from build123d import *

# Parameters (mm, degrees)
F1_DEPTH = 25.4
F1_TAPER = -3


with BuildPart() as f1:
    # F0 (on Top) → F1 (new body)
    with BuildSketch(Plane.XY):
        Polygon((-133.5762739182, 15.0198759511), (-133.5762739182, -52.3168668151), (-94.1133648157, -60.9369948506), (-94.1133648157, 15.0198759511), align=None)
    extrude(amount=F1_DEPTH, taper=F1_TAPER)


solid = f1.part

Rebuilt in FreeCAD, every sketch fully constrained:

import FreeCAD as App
import Part
import Sketcher
Q = App.Units.Quantity


def add_polygon(sketch, points):
    """Adds a closed chain of lines whose ends are joined by coincident constraints."""
    first, n = sketch.GeometryCount, len(points)
    for a, b in zip(points, points[1:] + points[:1]):
        sketch.addGeometry(Part.LineSegment(App.Vector(*a, 0), App.Vector(*b, 0)), False)
    for i in range(n):
        sketch.addConstraint(Sketcher.Constraint("Coincident", first + i, 2, first + (i + 1) % n, 1))

doc = App.newDocument("Part")
body = doc.addObject("PartDesign::Body", "Body")

# Sketch on XY plane
sketch1 = doc.addObject("Sketcher::SketchObject", "Sketch")
body.addObject(sketch1)
sketch1.AttachmentSupport = (doc.XY_Plane, [""])
sketch1.MapMode = "FlatFace"
add_polygon(sketch1, [(-134, 15), (-134, -52), (-94, -61), (-94, 15)])  # lines 0-3
sketch1.addConstraint(Sketcher.Constraint("Vertical", 0))
sketch1.addConstraint(Sketcher.Constraint("Vertical", 2))
sketch1.addConstraint(Sketcher.Constraint("Horizontal", 3))
sketch1.addConstraint(Sketcher.Constraint("DistanceX", 3, 2, 3, 1, 39.462909))
sketch1.addConstraint(Sketcher.Constraint("DistanceY", 2, 1, 2, 2, 75.956871))
sketch1.addConstraint(Sketcher.Constraint("DistanceY", 0, 2, 0, 1, 67.336743))
sketch1.addConstraint(Sketcher.Constraint("DistanceX", 0, 2, -1, 1, 133.576274))
sketch1.addConstraint(Sketcher.Constraint("DistanceY", 0, 2, -1, 1, 52.316867))
pad1 = doc.addObject("PartDesign::Pad", "Pad")
body.addObject(pad1)
pad1.Profile = sketch1
pad1.Length = Q("1 in")
pad1.TaperAngle = 3

doc.recompute()
